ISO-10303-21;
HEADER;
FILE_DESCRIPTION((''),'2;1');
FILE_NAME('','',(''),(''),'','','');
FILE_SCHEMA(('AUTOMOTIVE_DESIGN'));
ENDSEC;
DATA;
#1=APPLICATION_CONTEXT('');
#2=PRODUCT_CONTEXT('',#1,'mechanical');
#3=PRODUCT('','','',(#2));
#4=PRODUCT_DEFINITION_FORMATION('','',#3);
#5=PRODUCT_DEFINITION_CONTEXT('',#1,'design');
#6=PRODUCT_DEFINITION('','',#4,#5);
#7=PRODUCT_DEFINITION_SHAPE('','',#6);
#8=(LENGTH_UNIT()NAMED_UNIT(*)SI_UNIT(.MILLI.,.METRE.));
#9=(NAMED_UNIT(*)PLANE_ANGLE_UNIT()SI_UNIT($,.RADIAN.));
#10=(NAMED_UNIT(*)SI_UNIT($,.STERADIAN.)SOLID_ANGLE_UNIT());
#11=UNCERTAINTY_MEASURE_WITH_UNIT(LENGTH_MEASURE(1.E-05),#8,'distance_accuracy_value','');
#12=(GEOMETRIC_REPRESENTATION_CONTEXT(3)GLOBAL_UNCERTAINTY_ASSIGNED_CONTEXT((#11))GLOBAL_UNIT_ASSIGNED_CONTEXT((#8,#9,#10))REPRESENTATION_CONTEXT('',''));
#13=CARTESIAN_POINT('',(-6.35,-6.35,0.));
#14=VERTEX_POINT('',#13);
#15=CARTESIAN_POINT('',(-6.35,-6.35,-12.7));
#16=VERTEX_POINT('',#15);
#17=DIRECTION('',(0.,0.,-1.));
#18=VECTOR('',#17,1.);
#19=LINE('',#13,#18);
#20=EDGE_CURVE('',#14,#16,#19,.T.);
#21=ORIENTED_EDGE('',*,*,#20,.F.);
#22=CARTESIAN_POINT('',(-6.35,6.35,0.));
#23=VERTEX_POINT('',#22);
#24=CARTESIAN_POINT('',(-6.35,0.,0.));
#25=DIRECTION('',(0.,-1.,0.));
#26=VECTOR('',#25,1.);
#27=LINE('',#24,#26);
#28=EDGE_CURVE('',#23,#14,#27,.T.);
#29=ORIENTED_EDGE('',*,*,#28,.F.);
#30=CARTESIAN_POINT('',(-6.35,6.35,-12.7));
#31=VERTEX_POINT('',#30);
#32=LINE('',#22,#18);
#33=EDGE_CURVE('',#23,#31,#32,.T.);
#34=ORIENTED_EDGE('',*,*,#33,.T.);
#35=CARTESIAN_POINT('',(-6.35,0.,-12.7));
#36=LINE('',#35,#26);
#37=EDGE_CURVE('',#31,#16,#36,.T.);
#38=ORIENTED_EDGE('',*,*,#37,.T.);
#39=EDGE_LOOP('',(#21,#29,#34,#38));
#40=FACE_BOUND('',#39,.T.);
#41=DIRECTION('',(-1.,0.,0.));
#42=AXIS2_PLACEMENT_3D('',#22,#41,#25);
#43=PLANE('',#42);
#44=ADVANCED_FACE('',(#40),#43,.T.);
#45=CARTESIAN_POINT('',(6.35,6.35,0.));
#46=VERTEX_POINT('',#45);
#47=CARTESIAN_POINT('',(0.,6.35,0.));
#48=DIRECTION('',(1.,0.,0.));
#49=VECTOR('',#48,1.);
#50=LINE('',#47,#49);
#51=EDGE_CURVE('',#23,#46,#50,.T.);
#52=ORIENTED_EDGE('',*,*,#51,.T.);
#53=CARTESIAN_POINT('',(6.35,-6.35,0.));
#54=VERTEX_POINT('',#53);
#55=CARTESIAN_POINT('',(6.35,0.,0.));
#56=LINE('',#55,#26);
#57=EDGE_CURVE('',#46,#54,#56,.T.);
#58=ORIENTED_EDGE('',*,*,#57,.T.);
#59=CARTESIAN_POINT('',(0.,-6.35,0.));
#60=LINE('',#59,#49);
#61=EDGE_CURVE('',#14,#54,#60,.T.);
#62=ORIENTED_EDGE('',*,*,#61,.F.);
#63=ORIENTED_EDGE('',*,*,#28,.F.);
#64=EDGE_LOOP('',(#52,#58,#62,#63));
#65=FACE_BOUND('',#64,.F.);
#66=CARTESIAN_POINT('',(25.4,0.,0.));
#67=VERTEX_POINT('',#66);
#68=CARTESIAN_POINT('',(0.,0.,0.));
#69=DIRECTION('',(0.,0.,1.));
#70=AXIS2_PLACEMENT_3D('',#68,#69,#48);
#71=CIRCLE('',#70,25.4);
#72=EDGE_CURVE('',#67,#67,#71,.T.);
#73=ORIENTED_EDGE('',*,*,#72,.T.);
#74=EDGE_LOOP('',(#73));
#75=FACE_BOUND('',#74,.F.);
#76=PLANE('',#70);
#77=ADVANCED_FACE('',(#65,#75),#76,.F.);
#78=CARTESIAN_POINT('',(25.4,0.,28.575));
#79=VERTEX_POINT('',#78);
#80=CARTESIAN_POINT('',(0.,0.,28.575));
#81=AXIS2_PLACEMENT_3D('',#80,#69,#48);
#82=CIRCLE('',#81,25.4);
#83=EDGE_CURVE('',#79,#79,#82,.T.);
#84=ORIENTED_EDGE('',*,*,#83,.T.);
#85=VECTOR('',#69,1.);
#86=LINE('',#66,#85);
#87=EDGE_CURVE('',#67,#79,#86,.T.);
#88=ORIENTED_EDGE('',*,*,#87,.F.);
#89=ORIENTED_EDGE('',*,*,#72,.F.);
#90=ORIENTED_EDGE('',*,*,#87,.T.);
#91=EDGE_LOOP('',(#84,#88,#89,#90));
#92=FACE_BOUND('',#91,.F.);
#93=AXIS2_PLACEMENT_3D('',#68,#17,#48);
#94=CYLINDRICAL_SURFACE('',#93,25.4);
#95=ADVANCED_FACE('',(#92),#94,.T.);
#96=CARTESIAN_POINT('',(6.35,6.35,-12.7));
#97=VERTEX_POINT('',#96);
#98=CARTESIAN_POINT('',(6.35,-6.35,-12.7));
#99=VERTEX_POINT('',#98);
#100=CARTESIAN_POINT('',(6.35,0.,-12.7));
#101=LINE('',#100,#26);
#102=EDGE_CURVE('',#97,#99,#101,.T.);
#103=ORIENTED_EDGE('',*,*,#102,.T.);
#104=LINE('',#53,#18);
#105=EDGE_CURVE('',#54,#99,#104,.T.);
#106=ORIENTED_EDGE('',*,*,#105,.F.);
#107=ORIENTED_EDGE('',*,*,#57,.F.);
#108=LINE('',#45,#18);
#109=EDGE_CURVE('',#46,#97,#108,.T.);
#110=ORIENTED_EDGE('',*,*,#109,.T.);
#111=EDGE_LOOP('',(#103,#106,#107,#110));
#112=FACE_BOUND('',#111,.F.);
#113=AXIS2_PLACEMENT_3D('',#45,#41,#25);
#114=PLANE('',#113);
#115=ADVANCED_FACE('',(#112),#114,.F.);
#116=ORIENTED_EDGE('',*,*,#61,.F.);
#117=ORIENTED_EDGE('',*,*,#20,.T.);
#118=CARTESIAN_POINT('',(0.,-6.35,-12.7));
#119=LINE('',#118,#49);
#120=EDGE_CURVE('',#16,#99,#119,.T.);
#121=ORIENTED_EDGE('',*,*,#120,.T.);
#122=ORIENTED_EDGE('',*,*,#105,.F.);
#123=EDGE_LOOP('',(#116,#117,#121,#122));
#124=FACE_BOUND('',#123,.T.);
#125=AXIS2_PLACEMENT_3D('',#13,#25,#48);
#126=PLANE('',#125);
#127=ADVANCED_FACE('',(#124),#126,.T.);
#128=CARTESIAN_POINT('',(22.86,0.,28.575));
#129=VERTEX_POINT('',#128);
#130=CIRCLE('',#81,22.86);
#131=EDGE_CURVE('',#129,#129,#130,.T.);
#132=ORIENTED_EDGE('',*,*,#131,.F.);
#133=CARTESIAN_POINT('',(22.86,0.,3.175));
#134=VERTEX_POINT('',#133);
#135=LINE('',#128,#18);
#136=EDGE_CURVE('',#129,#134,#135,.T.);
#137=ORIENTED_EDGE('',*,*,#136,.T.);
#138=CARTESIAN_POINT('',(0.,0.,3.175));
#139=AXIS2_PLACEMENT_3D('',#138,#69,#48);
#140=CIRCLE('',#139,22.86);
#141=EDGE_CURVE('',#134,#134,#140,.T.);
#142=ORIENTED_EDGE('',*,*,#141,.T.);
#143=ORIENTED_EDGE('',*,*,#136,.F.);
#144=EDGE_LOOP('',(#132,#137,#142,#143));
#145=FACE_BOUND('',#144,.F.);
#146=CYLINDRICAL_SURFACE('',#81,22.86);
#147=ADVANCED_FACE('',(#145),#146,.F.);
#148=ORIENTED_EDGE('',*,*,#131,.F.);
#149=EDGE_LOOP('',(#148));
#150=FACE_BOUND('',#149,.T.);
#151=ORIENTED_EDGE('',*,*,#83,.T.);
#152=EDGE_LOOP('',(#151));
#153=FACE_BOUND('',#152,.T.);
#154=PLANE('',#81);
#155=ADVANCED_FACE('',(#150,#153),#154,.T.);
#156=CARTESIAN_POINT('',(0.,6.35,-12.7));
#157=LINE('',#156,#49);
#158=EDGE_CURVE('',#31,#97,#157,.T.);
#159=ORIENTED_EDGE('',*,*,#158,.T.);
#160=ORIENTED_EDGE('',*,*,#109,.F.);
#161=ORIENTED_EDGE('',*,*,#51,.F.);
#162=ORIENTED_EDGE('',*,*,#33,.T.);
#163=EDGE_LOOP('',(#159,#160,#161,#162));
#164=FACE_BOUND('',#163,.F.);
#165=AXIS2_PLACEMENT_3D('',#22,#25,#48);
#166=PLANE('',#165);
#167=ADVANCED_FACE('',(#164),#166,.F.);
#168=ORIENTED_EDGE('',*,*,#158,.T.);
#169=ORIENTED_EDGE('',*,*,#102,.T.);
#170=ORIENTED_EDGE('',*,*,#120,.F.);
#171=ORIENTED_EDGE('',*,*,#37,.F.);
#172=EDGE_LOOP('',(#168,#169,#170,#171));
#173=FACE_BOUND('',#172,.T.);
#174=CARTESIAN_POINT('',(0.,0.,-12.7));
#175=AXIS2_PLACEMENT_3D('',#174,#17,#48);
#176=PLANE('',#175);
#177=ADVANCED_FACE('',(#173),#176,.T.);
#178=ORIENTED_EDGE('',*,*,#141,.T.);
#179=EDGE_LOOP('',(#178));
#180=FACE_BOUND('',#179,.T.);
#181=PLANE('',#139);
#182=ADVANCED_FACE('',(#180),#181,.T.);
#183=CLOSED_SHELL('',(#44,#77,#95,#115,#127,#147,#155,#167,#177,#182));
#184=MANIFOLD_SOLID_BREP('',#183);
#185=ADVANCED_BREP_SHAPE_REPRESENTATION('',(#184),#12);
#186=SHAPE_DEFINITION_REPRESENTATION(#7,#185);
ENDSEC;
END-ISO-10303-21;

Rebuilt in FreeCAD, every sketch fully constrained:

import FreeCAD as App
import Part
import Sketcher
Q = App.Units.Quantity


def add_polygon(sketch, points):
    """Adds a closed chain of lines whose ends are joined by coincident constraints."""
    first, n = sketch.GeometryCount, len(points)
    for a, b in zip(points, points[1:] + points[:1]):
        sketch.addGeometry(Part.LineSegment(App.Vector(*a, 0), App.Vector(*b, 0)), False)
    for i in range(n):
        sketch.addConstraint(Sketcher.Constraint("Coincident", first + i, 2, first + (i + 1) % n, 1))

doc = App.newDocument("Part")
params = doc.addObject("Spreadsheet::Sheet", "Params")
for row, (alias, value) in enumerate([
    ("sketch1_diameter", "2 in"),
    ("pad1_length", "1.125 in"),
    ("sketch2_diameter", "1.8 in"),
    ("pocket1_length", "1 in"),
    ("sketch3_width", "0.5 in"),
    ("pad2_length", "0.5 in"),
], start=1):
    params.set(f"A{row}", alias)
    params.set(f"B{row}", "=" + value)
    params.setAlias(f"B{row}", alias)

body = doc.addObject("PartDesign::Body", "Body")

# Sketch on XY plane
sketch1 = doc.addObject("Sketcher::SketchObject", "Sketch")
body.addObject(sketch1)
sketch1.AttachmentSupport = (doc.XY_Plane, [""])
sketch1.MapMode = "FlatFace"
sketch1.addGeometry(Part.Circle(App.Vector(0, 0, 0), App.Vector(0, 0, 1), 25), False)
sketch1.addConstraint(Sketcher.Constraint("Coincident", 0, 3, -1, 1))
sketch1.addConstraint(Sketcher.Constraint("Diameter", 0, Q("2 in")))
sketch1.setExpression("Constraints[1]", "Params.sketch1_diameter")
pad1 = doc.addObject("PartDesign::Pad", "Pad")
body.addObject(pad1)
pad1.Profile = sketch1
pad1.setExpression("Length", "Params.pad1_length")

# Sketch on XY plane
sketch2 = doc.addObject("Sketcher::SketchObject", "Sketch001")
body.addObject(sketch2)
sketch2.AttachmentSupport = (doc.XY_Plane, [""])
sketch2.MapMode = "FlatFace"
sketch2.AttachmentOffset = App.Placement(App.Vector(0, 0, 1.125 * 25.4), App.Rotation())
sketch2.addGeometry(Part.Circle(App.Vector(0, 0, 0), App.Vector(0, 0, 1), 23), False)
sketch2.addConstraint(Sketcher.Constraint("Coincident", 0, 3, -1, 1))
sketch2.addConstraint(Sketcher.Constraint("Diameter", 0, Q("1.8 in")))
sketch2.setExpression("Constraints[1]", "Params.sketch2_diameter")
pocket1 = doc.addObject("PartDesign::Pocket", "Pocket")
body.addObject(pocket1)
pocket1.Profile = sketch2
pocket1.setExpression("Length", "Params.pocket1_length")

# Sketch on XY plane
sketch3 = doc.addObject("Sketcher::SketchObject", "Sketch002")
body.addObject(sketch3)
sketch3.AttachmentSupport = (doc.XY_Plane, [""])
sketch3.MapMode = "FlatFace"
add_polygon(sketch3, [(-6, -6), (-6, 6), (6, 6), (6, -6)])  # lines 0-3
sketch3.addConstraint(Sketcher.Constraint("Vertical", 0))
sketch3.addConstraint(Sketcher.Constraint("Horizontal", 1))
sketch3.addConstraint(Sketcher.Constraint("Vertical", 2))
sketch3.addConstraint(Sketcher.Constraint("Horizontal", 3))
sketch3.addConstraint(Sketcher.Constraint("Symmetric", 0, 2, 2, 2, -1, 1))
sketch3.addConstraint(Sketcher.Constraint("Equal", 3, 0))
sketch3.addConstraint(Sketcher.Constraint("DistanceX", 1, 1, 1, 2, Q("0.5 in")))
sketch3.setExpression("Constraints[10]", "Params.sketch3_width")
pad2 = doc.addObject("PartDesign::Pad", "Pad001")
body.addObject(pad2)
pad2.Profile = sketch3
pad2.setExpression("Length", "Params.pad2_length")
pad2.Reversed = True

doc.recompute()
